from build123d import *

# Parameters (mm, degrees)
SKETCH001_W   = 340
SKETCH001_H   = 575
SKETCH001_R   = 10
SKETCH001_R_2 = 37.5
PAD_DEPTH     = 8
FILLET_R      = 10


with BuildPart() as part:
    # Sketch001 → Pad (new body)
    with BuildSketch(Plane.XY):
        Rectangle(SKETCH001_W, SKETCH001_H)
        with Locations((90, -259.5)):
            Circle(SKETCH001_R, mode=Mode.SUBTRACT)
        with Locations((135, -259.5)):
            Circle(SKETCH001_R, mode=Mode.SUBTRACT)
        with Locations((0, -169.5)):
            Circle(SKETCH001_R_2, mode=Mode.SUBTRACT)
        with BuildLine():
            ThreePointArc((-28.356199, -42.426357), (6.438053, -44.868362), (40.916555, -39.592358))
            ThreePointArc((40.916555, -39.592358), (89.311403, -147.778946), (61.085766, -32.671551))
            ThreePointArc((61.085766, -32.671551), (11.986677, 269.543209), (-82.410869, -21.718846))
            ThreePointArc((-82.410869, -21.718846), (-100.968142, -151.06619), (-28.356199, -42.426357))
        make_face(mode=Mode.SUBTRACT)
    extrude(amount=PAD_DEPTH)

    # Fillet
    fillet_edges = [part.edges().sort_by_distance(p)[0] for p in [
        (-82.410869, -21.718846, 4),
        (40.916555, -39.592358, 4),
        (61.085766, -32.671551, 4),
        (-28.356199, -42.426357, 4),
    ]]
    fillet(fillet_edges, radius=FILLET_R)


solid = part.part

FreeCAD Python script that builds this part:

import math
import FreeCAD as App
import Part
import Sketcher
Q = App.Units.Quantity


def edges_at(feature, points):
    """Names of the edges that pass closest to the given points."""
    edges = feature.Shape.Edges
    near = lambda p: min(range(len(edges)), key=lambda i: edges[i].distToShape(Part.Vertex(*p))[0])
    return sorted({f"Edge{near(p) + 1}" for p in points})

doc = App.newDocument("Part")
body = doc.addObject("PartDesign::Body", "Body")

# Sketch on XY plane
sketch1 = body.newObject("Sketcher::SketchObject", "Sketch")
sketch1.AttachmentSupport = (doc.getObject("XY_Plane"), [""])
sketch1.MapMode = "FlatFace"
sketch1.addGeometry(Part.LineSegment(App.Vector(-170, 287.5, 0), App.Vector(-170, -287.5, 0)), False)
sketch1.addGeometry(Part.LineSegment(App.Vector(-170, -287.5, 0), App.Vector(170, -287.5, 0)), False)
sketch1.addGeometry(Part.LineSegment(App.Vector(170, -287.5, 0), App.Vector(170, 287.5, 0)), False)
sketch1.addGeometry(Part.LineSegment(App.Vector(170, 287.5, 0), App.Vector(-170, 287.5, 0)), False)
sketch1.addGeometry(Part.Circle(App.Vector(0, -169.5, 0), App.Vector(0, 0, 1), 37.5), False)
sketch1.addGeometry(Part.Circle(App.Vector(90, -259.5, 0), App.Vector(0, 0, 1), 10), False)
sketch1.addGeometry(Part.Circle(App.Vector(135, -259.5, 0), App.Vector(0, 0, 1), 10), False)
sketch1.addGeometry(Part.ArcOfCircle(Part.Circle(App.Vector(-0.000002, 112.500012, 0), App.Vector(0, 0, 1), 157.500011), math.radians(-100.372051), math.radians(-74.942538)), False)
sketch1.addGeometry(Part.ArcOfCircle(Part.Circle(App.Vector(-77.000001, -88.5, 0), App.Vector(0, 0, 1), 67), math.radians(94.632208), math.radians(403.44566)), False)
sketch1.addGeometry(Part.ArcOfCircle(Part.Circle(App.Vector(0, 112.5, 0), App.Vector(0, 0, 1), 157.5), math.radians(-67.179454), math.radians(238.449921)), False)
sketch1.addGeometry(Part.ArcOfCircle(Part.Circle(App.Vector(69.999998, -91.500001, 0), App.Vector(0, 0, 1), 59.5), math.radians(119.261566), math.radians(458.616439)), False)
sketch1.addConstraint(Sketcher.Constraint("Coincident", 0, 2, 1, 1))
sketch1.addConstraint(Sketcher.Constraint("Coincident", 1, 2, 2, 1))
sketch1.addConstraint(Sketcher.Constraint("Coincident", 2, 2, 3, 1))
sketch1.addConstraint(Sketcher.Constraint("Coincident", 3, 2, 0, 1))
sketch1.addConstraint(Sketcher.Constraint("Coincident", 7, 1, 8, 2))
sketch1.addConstraint(Sketcher.Constraint("Coincident", 8, 1, 9, 2))
sketch1.addConstraint(Sketcher.Constraint("Coincident", 9, 1, 10, 2))
sketch1.addConstraint(Sketcher.Constraint("Coincident", 10, 1, 7, 2))
sketch1.addConstraint(Sketcher.Constraint("Vertical", 0))
sketch1.addConstraint(Sketcher.Constraint("Horizontal", 1))
sketch1.addConstraint(Sketcher.Constraint("Vertical", 2))
sketch1.addConstraint(Sketcher.Constraint("Horizontal", 3))
sketch1.addConstraint(Sketcher.Constraint("Equal", 5, 6))
sketch1.addConstraint(Sketcher.Constraint("Symmetric", 0, 2, 2, 2, -1, 1))
sketch1.addConstraint(Sketcher.Constraint("PointOnObject", 4, 3, -2))
sketch1.addConstraint(Sketcher.Constraint("PointOnObject", 9, 3, -2))
sketch1.addConstraint(Sketcher.Constraint("Horizontal", 5, 3, 6, 3))
sketch1.addConstraint(Sketcher.Constraint("Diameter", 4, Q("75 mm")))
sketch1.addConstraint(Sketcher.Constraint("Diameter", 5, Q("20 mm")))
sketch1.addConstraint(Sketcher.Constraint("Radius", 8, Q("67 mm")))
sketch1.addConstraint(Sketcher.Constraint("Radius", 9, Q("157.5 mm")))
sketch1.addConstraint(Sketcher.Constraint("Radius", 10, Q("59.5 mm")))
sketch1.addConstraint(Sketcher.Constraint("DistanceX", 1, 1, 1, 2, Q("340 mm")))
sketch1.addConstraint(Sketcher.Constraint("DistanceY", 0, 2, 0, 1, Q("575 mm")))
sketch1.addConstraint(Sketcher.Constraint("DistanceX", -1, 1, 5, 3, Q("90 mm")))
sketch1.addConstraint(Sketcher.Constraint("DistanceX", -1, 1, 6, 3, Q("135 mm")))
sketch1.addConstraint(Sketcher.Constraint("DistanceX", 8, 3, -1, 1, Q("77.000001 mm")))
sketch1.addConstraint(Sketcher.Constraint("DistanceX", -1, 1, 10, 3, Q("69.999998 mm")))
sketch1.addConstraint(Sketcher.Constraint("DistanceY", 5, 3, 4, 3, Q("90 mm")))
sketch1.addConstraint(Sketcher.Constraint("DistanceY", 4, 3, 8, 3, Q("81 mm")))
sketch1.addConstraint(Sketcher.Constraint("DistanceX", 8, 3, 7, 3, Q("76.999998 mm")))
sketch1.addConstraint(Sketcher.Constraint("DistanceY", 8, 3, 9, 3, Q("201 mm")))
sketch1.addConstraint(Sketcher.Constraint("DistanceY", 4, 3, 10, 3, Q("77.999999 mm")))
sketch1.addConstraint(Sketcher.Constraint("DistanceY", 0, 2, 4, 3, Q("118 mm")))
sketch1.addConstraint(Sketcher.Constraint("Radius", 7, Q("157.500011 mm")))
sketch1.addConstraint(Sketcher.Constraint("DistanceY", 7, 1, 10, 1, Q("2.833999 mm")))
pad1 = body.newObject("PartDesign::Pad", "Pad")
pad1.Profile = sketch1
pad1.Length = 8
doc.recompute()

fillet = body.newObject("PartDesign::Fillet", "Fillet")
fillet.Base = (pad1, edges_at(pad1, [
    (-82.411, -21.719, 4),
    (40.917, -39.592, 4),
    (61.086, -32.672, 4),
    (-28.356, -42.426, 4),
]))
fillet.Radius = 10

doc.recompute()
